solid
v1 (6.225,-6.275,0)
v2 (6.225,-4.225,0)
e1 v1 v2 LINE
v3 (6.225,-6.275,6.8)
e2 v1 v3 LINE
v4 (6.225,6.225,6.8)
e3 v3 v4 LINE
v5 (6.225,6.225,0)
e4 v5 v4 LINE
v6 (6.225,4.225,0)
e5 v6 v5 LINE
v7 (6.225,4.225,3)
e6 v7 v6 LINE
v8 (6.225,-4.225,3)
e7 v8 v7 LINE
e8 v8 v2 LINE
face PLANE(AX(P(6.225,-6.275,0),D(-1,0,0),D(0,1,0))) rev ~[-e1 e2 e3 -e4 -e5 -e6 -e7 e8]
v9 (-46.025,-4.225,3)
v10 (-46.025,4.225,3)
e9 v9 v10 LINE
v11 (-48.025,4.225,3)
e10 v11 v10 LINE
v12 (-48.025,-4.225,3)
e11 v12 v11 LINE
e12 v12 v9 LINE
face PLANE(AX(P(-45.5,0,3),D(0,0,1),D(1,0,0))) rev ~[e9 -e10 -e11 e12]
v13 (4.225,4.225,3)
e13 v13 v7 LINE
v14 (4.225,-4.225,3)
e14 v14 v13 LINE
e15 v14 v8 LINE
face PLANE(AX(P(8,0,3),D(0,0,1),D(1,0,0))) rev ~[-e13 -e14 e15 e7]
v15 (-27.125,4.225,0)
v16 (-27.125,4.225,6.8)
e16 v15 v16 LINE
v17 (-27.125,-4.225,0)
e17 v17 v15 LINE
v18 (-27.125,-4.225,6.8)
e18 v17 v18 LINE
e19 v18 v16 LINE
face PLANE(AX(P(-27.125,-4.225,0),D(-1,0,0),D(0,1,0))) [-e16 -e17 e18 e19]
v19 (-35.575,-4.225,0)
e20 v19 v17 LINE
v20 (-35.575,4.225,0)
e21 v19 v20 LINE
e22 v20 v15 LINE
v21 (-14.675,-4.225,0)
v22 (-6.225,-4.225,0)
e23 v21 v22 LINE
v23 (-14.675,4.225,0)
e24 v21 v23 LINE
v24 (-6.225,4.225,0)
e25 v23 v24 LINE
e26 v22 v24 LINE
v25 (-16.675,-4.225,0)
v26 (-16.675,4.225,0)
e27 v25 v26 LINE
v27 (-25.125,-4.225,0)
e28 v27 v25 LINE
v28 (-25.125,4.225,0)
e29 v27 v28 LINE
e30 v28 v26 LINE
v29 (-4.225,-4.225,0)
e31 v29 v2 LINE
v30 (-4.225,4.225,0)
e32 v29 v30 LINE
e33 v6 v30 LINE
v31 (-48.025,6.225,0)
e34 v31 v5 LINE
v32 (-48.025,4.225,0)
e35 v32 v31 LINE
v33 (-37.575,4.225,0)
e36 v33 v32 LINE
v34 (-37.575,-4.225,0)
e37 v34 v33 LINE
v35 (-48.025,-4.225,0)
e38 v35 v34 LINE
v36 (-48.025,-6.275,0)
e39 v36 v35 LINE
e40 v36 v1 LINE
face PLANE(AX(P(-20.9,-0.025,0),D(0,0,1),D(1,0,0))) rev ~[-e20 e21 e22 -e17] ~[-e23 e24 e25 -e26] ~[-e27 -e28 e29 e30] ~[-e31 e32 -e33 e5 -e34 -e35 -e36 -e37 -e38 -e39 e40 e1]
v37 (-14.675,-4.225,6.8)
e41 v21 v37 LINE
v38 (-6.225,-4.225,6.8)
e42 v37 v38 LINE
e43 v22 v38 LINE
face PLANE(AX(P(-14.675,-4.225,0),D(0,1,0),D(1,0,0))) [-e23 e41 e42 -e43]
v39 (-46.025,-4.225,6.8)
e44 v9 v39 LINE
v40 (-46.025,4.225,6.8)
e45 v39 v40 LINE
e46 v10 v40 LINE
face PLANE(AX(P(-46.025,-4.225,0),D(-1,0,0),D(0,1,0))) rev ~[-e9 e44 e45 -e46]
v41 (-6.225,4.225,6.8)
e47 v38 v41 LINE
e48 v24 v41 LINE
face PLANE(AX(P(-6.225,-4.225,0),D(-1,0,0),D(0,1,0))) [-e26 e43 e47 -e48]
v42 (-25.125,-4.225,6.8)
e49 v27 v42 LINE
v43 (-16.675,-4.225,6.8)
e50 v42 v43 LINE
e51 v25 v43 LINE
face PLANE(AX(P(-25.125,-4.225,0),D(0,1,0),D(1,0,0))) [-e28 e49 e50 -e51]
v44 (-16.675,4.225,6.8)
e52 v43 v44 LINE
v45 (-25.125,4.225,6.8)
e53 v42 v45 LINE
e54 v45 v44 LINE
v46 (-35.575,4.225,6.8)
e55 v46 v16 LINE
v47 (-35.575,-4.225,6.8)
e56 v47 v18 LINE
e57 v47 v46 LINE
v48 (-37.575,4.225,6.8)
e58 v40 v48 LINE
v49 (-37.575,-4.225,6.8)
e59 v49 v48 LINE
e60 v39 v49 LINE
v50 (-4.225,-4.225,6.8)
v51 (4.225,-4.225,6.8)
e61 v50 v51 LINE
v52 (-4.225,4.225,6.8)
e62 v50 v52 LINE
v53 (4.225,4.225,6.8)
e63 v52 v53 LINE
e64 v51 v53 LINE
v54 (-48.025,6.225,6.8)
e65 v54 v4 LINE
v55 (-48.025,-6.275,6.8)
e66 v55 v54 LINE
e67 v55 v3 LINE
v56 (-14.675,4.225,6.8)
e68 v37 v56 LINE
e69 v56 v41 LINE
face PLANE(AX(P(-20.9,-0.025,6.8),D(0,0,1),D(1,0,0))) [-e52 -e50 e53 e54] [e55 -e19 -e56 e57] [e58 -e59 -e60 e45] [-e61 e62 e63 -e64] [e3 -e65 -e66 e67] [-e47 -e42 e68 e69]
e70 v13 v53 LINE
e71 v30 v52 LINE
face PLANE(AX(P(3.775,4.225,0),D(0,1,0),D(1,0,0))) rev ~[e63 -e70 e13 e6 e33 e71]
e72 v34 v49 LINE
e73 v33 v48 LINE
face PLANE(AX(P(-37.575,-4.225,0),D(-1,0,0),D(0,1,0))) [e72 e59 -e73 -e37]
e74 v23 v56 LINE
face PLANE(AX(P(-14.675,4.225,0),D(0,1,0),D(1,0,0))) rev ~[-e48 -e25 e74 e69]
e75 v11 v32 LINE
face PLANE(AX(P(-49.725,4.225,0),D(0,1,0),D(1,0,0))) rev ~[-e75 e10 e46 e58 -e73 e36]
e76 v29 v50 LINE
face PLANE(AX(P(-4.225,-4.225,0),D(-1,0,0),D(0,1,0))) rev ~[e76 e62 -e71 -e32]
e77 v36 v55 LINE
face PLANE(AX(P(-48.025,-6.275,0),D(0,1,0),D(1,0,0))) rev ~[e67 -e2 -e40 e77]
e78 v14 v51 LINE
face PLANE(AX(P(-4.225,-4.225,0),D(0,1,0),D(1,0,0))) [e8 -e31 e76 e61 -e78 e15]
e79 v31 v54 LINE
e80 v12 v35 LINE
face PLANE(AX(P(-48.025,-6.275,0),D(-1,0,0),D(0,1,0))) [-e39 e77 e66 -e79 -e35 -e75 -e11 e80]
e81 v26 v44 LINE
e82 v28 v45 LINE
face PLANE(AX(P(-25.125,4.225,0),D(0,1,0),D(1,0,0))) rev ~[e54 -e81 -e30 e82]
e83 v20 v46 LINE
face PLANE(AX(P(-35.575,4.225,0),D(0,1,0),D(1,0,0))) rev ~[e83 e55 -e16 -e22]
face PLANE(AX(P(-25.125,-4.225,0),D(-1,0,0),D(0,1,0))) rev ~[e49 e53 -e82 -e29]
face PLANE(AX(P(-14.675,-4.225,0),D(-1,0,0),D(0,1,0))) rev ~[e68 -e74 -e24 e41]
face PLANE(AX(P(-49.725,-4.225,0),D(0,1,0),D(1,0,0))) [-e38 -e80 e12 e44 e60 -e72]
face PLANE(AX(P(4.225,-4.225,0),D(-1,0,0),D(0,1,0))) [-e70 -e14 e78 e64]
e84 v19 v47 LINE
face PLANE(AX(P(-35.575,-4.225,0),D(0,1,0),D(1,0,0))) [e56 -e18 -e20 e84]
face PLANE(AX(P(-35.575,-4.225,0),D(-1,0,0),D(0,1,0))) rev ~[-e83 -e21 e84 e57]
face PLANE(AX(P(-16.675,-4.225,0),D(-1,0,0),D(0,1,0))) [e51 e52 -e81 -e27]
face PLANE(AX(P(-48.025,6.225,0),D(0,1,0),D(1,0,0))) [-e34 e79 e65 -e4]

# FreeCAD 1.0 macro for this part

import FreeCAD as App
import Part
import Sketcher
Q = App.Units.Quantity


def add_polygon(sketch, points):
    """Adds a closed chain of lines whose ends are joined by coincident constraints."""
    first, n = sketch.GeometryCount, len(points)
    for a, b in zip(points, points[1:] + points[:1]):
        sketch.addGeometry(Part.LineSegment(App.Vector(*a, 0), App.Vector(*b, 0)), False)
    for i in range(n):
        sketch.addConstraint(Sketcher.Constraint("Coincident", first + i, 2, first + (i + 1) % n, 1))

doc = App.newDocument("Part")
params = doc.addObject("Spreadsheet::Sheet", "Params")
for row, (alias, value) in enumerate([
    ("sketch1_width", "8.45 mm"),
    ("pad1_length", "3 mm"),
    ("sketch2_height", "12.5 mm"),
    ("sketch2_width", "54.25 mm"),
    ("pad2_length", "6.8 mm"),
], start=1):
    params.set(f"A{row}", alias)
    params.set(f"B{row}", "=" + value)
    params.setAlias(f"B{row}", alias)

body = doc.addObject("PartDesign::Body", "Body")
body.AllowCompound = True

# Sketch on XY plane
sketch1 = body.newObject("Sketcher::SketchObject", "Sketch")
sketch1.AttachmentSupport = (doc.getObject("XY_Plane"), [""])
sketch1.MapMode = "FlatFace"
add_polygon(sketch1, [(-50, 4), (-50, -4), (-41, -4), (-41, 4)])  # lines 0-3
add_polygon(sketch1, [(4, 4), (4, -4), (12, -4), (12, 4)])  # lines 4-7
sketch1.addConstraint([
    Sketcher.Constraint("Vertical", 0),
    Sketcher.Constraint("Horizontal", 1),
    Sketcher.Constraint("Vertical", 2),
    Sketcher.Constraint("Horizontal", 3),
    Sketcher.Constraint("Vertical", 4),
    Sketcher.Constraint("Horizontal", 5),
    Sketcher.Constraint("Vertical", 6),
    Sketcher.Constraint("Horizontal", 7),
    Sketcher.Constraint("Horizontal", 1, 2, 4, 2),
    Sketcher.Constraint("Horizontal", 3, 2, 6, 2),
    Sketcher.Constraint("Equal", 3, 5),
    Sketcher.Constraint("Equal", 7, 0),
    Sketcher.Constraint("DistanceX", 1, 1, 1, 2, Q("8.45 mm")),
    Sketcher.Constraint("DistanceX", 0, 2, 4, 2, Q("53.5 mm")),
    Sketcher.Constraint("DistanceX", 0, 2, -1, 1, Q("49.725 mm")),
    Sketcher.Constraint("DistanceY", 0, 2, -1, 1, Q("4.225 mm")),
])
sketch1.setExpression("Constraints[20]", "Params.sketch1_width")
pad1 = body.newObject("PartDesign::Pad", "Pad")
pad1.Profile = sketch1
pad1.setExpression("Length", "Params.pad1_length")
body2 = doc.addObject("PartDesign::Body", "Body001")

# Sketch on XY plane
sketch2 = body2.newObject("Sketcher::SketchObject", "Sketch001")
sketch2.AttachmentSupport = (doc.getObject("XY_Plane001"), [""])
sketch2.MapMode = "FlatFace"
add_polygon(sketch2, [(-48, 6), (-48, -6), (6, -6), (6, 6)])  # lines 0-3
add_polygon(sketch2, [(-38, -4), (-46, -4), (-46, 4), (-38, 4)])  # lines 4-7
add_polygon(sketch2, [(-27, -4), (-36, -4), (-36, 4), (-27, 4)])  # lines 8-11
add_polygon(sketch2, [(-17, -4), (-25, -4), (-25, 4), (-17, 4)])  # lines 12-15
add_polygon(sketch2, [(-6, -4), (-15, -4), (-15, 4), (-6, 4)])  # lines 16-19
add_polygon(sketch2, [(4, -4), (-4, -4), (-4, 4), (4, 4)])  # lines 20-23
sketch2.addConstraint([
    Sketcher.Constraint("Vertical", 0),
    Sketcher.Constraint("Horizontal", 1),
    Sketcher.Constraint("Vertical", 2),
    Sketcher.Constraint("Horizontal", 3),
    Sketcher.Constraint("Horizontal", 4),
    Sketcher.Constraint("Vertical", 5),
    Sketcher.Constraint("Horizontal", 6),
    Sketcher.Constraint("Vertical", 7),
    Sketcher.Constraint("Horizontal", 8),
    Sketcher.Constraint("Vertical", 9),
    Sketcher.Constraint("Horizontal", 10),
    Sketcher.Constraint("Vertical", 11),
    Sketcher.Constraint("Horizontal", 12),
    Sketcher.Constraint("Vertical", 13),
    Sketcher.Constraint("Horizontal", 14),
    Sketcher.Constraint("Vertical", 15),
    Sketcher.Constraint("Horizontal", 16),
    Sketcher.Constraint("Vertical", 17),
    Sketcher.Constraint("Horizontal", 18),
    Sketcher.Constraint("Vertical", 19),
    Sketcher.Constraint("Horizontal", 20),
    Sketcher.Constraint("Vertical", 21),
    Sketcher.Constraint("Horizontal", 22),
    Sketcher.Constraint("Vertical", 23),
    Sketcher.Constraint("Symmetric", 20, 2, 22, 2, -1, 1),
    Sketcher.Constraint("Horizontal", 7, 2, 8, 2),
    Sketcher.Constraint("Horizontal", 6, 2, 9, 2),
    Sketcher.Constraint("Horizontal", 11, 2, 12, 2),
    Sketcher.Constraint("Horizontal", 10, 2, 13, 2),
    Sketcher.Constraint("Horizontal", 15, 2, 16, 2),
    Sketcher.Constraint("Horizontal", 14, 2, 17, 2),
    Sketcher.Constraint("Horizontal", 19, 2, 20, 2),
    Sketcher.Constraint("Horizontal", 18, 2, 21, 2),
    Sketcher.Constraint("Equal", 6, 8),
    Sketcher.Constraint("Equal", 10, 12),
    Sketcher.Constraint("Equal", 14, 16),
    Sketcher.Constraint("Equal", 18, 20),
    Sketcher.Constraint("Equal", 22, 5),
    Sketcher.Constraint("DistanceY", 0, 2, 0, 1, Q("12.5 mm")),
    Sketcher.Constraint("DistanceX", 0, 2, 4, 2, Q("2 mm")),
    Sketcher.Constraint("DistanceY", 5, 2, 3, 2, Q("2 mm")),
    Sketcher.Constraint("DistanceX", 7, 2, 8, 2, Q("2 mm")),
    Sketcher.Constraint("DistanceX", 11, 2, 12, 2, Q("2 mm")),
    Sketcher.Constraint("DistanceX", 15, 2, 16, 2, Q("2 mm")),
    Sketcher.Constraint("DistanceX", 19, 2, 20, 2, Q("2 mm")),
    Sketcher.Constraint("DistanceX", 22, 2, 2, 2, Q("2 mm")),
    Sketcher.Constraint("DistanceX", 1, 1, 1, 2, Q("54.25 mm")),
])
sketch2.setExpression("Constraints[62]", "Params.sketch2_height")
sketch2.setExpression("Constraints[70]", "Params.sketch2_width")
pad2 = body2.newObject("PartDesign::Pad", "Pad001")
pad2.Profile = sketch2
pad2.setExpression("Length", "Params.pad2_length")
doc.recompute()

boolean = body2.newObject("PartDesign::Boolean", "Boolean")
boolean.Type = "Cut"
boolean.addObjects([body])

doc.recompute()
